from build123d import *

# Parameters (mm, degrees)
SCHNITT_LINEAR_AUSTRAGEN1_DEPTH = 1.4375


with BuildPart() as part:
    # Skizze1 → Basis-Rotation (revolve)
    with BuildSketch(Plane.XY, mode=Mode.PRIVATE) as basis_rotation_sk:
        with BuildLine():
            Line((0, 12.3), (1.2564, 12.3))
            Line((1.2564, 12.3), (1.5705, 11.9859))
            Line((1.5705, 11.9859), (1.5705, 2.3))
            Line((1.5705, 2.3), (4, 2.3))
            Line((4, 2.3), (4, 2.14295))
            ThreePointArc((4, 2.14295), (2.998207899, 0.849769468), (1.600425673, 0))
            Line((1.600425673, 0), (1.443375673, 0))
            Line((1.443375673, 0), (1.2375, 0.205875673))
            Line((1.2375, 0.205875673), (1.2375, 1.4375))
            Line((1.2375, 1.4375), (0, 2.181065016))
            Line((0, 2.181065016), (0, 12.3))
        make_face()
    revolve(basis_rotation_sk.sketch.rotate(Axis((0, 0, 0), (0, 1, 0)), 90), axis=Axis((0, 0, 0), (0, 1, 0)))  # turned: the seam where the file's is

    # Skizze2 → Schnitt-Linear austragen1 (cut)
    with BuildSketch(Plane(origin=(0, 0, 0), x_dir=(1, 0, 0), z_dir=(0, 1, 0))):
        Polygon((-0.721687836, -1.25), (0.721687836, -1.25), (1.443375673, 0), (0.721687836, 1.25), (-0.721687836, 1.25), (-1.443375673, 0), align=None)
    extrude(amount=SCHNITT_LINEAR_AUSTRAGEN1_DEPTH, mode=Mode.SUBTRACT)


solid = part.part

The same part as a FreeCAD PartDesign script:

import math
import FreeCAD as App
import Part
import Sketcher

V = App.Vector
Q = App.Units.Quantity

doc = App.newDocument("Part")
params = doc.addObject("Spreadsheet::Sheet", "Params")
for row, (alias, value) in enumerate([
    ("revolution_angle", "360 deg"),
    ("pocket1_length", "1.4375 mm"),
], start=1):
    params.set(f"A{row}", alias)
    params.set(f"B{row}", "=" + value)
    params.setAlias(f"B{row}", alias)

body = doc.addObject("PartDesign::Body", "Body")

# Sketch on XY plane
sketch1 = body.newObject("Sketcher::SketchObject", "Sketch")
sketch1.AttachmentSupport = (doc.getObject("XY_Plane"), [""])
sketch1.MapMode = "FlatFace"
sketch1.addGeometry(Part.LineSegment(V(1.2564, 12.3, 0), V(0, 12.3, 0)), False)
sketch1.addGeometry(Part.LineSegment(V(0, 12.3, 0), V(0, 2.181065, 0)), False)
sketch1.addGeometry(Part.LineSegment(V(0, 2.181065, 0), V(1.2375, 1.4375, 0)), False)
sketch1.addGeometry(Part.LineSegment(V(1.2375, 1.4375, 0), V(1.2375, 0.205876, 0)), False)
sketch1.addGeometry(Part.LineSegment(V(1.2375, 0.205876, 0), V(1.443376, 0, 0)), False)
sketch1.addGeometry(Part.LineSegment(V(1.443376, 0, 0), V(1.600426, 0, 0)), False)
sketch1.addGeometry(Part.ArcOfCircle(Part.Circle(V(0, 4.207021, 0), V(0, 0, 1), 4.501154), math.radians(-69.172295), math.radians(-27.29454)), False)
sketch1.addGeometry(Part.LineSegment(V(4, 2.14295, 0), V(4, 2.3, 0)), False)
sketch1.addGeometry(Part.LineSegment(V(4, 2.3, 0), V(1.5705, 2.3, 0)), False)
sketch1.addGeometry(Part.LineSegment(V(1.5705, 2.3, 0), V(1.5705, 11.9859, 0)), False)
sketch1.addGeometry(Part.LineSegment(V(1.5705, 11.9859, 0), V(1.2564, 12.3, 0)), False)
sketch1.addConstraint(Sketcher.Constraint("Coincident", 0, 2, 1, 1))
sketch1.addConstraint(Sketcher.Constraint("Coincident", 1, 2, 2, 1))
sketch1.addConstraint(Sketcher.Constraint("Coincident", 2, 2, 3, 1))
sketch1.addConstraint(Sketcher.Constraint("Coincident", 3, 2, 4, 1))
sketch1.addConstraint(Sketcher.Constraint("Coincident", 4, 2, 5, 1))
sketch1.addConstraint(Sketcher.Constraint("Coincident", 5, 2, 6, 1))
sketch1.addConstraint(Sketcher.Constraint("Coincident", 6, 2, 7, 1))
sketch1.addConstraint(Sketcher.Constraint("Coincident", 7, 2, 8, 1))
sketch1.addConstraint(Sketcher.Constraint("Coincident", 8, 2, 9, 1))
sketch1.addConstraint(Sketcher.Constraint("Coincident", 9, 2, 10, 1))
sketch1.addConstraint(Sketcher.Constraint("Coincident", 10, 2, 0, 1))
sketch1.addConstraint(Sketcher.Constraint("Horizontal", 0))
sketch1.addConstraint(Sketcher.Constraint("Vertical", 1))
sketch1.addConstraint(Sketcher.Constraint("Vertical", 3))
sketch1.addConstraint(Sketcher.Constraint("Horizontal", 5))
sketch1.addConstraint(Sketcher.Constraint("Vertical", 7))
sketch1.addConstraint(Sketcher.Constraint("Horizontal", 8))
sketch1.addConstraint(Sketcher.Constraint("Vertical", 9))
sketch1.addConstraint(Sketcher.Constraint("PointOnObject", 6, 3, -2))
sketch1.addConstraint(Sketcher.Constraint("PointOnObject", 0, 2, -2))
sketch1.addConstraint(Sketcher.Constraint("PointOnObject", 4, 2, -1))
sketch1.addConstraint(Sketcher.Constraint("Parallel", 4, 10))
sketch1.addConstraint(Sketcher.Constraint("Equal", 5, 7))
sketch1.addConstraint(Sketcher.Constraint("Angle", 2, Q("-31 deg")))
sketch1.addConstraint(Sketcher.Constraint("Angle", 4, Q("-45 deg")))
sketch1.addConstraint(Sketcher.Constraint("DistanceX", -1, 1, 6, 2, Q("4 mm")))
sketch1.addConstraint(Sketcher.Constraint("DistanceY", 8, 2, 10, 2, Q("10 mm")))
sketch1.addConstraint(Sketcher.Constraint("DistanceY", -1, 1, 0, 2, Q("12.3 mm")))
sketch1.addConstraint(Sketcher.Constraint("DistanceX", 0, 2, 0, 1, Q("1.2564 mm")))
sketch1.addConstraint(Sketcher.Constraint("DistanceX", 8, 2, 8, 1, Q("2.4295 mm")))
sketch1.addConstraint(Sketcher.Constraint("Radius", 6, Q("4.501154 mm")))
sketch1.addConstraint(Sketcher.Constraint("DistanceX", 2, 2, 8, 2, Q("0.333 mm")))
sketch1.addConstraint(Sketcher.Constraint("DistanceX", 5, 1, 5, 2, Q("0.15705 mm")))
sketch1.addConstraint(Sketcher.Constraint("DistanceY", -1, 1, 2, 2, Q("1.4375 mm")))
revolution = body.newObject("PartDesign::Revolution", "Revolution")
revolution.Profile = sketch1
revolution.ReferenceAxis = (sketch1, ["V_Axis"])
revolution.setExpression("Angle", "Params.revolution_angle")

# Sketch on XZ plane
sketch2 = body.newObject("Sketcher::SketchObject", "Sketch001")
sketch2.AttachmentSupport = (doc.getObject("XZ_Plane"), [""])
sketch2.MapMode = "FlatFace"
sketch2.addGeometry(Part.LineSegment(V(-0.721688, 1.25, 0), V(0.721688, 1.25, 0)), False)
sketch2.addGeometry(Part.LineSegment(V(0.721688, 1.25, 0), V(1.443376, 0, 0)), False)
sketch2.addGeometry(Part.LineSegment(V(1.443376, 0, 0), V(0.721688, -1.25, 0)), False)
sketch2.addGeometry(Part.LineSegment(V(0.721688, -1.25, 0), V(-0.721688, -1.25, 0)), False)
sketch2.addGeometry(Part.LineSegment(V(-0.721688, -1.25, 0), V(-1.443376, 0, 0)), False)
sketch2.addGeometry(Part.LineSegment(V(-1.443376, 0, 0), V(-0.721688, 1.25, 0)), False)
sketch2.addConstraint(Sketcher.Constraint("Coincident", 0, 2, 1, 1))
sketch2.addConstraint(Sketcher.Constraint("Coincident", 1, 2, 2, 1))
sketch2.addConstraint(Sketcher.Constraint("Coincident", 2, 2, 3, 1))
sketch2.addConstraint(Sketcher.Constraint("Coincident", 3, 2, 4, 1))
sketch2.addConstraint(Sketcher.Constraint("Coincident", 4, 2, 5, 1))
sketch2.addConstraint(Sketcher.Constraint("Coincident", 5, 2, 0, 1))
sketch2.addConstraint(Sketcher.Constraint("Horizontal", 0))
sketch2.addConstraint(Sketcher.Constraint("Horizontal", 3))
sketch2.addConstraint(Sketcher.Constraint("Symmetric", 0, 2, 3, 2, -1, 1))
sketch2.addConstraint(Sketcher.Constraint("Symmetric", 1, 2, 4, 2, -1, 1))
sketch2.addConstraint(Sketcher.Constraint("PointOnObject", 1, 2, -1))
sketch2.addConstraint(Sketcher.Constraint("Parallel", 2, 5))
sketch2.addConstraint(Sketcher.Constraint("Vertical", 0, 2, 2, 2))
sketch2.addConstraint(Sketcher.Constraint("Angle", 1, Q("-60 deg")))
sketch2.addConstraint(Sketcher.Constraint("DistanceY", 2, 2, 0, 2, Q("2.5 mm")))
sketch2.addConstraint(Sketcher.Constraint("DistanceX", 0, 1, 0, 2, Q("1.443376 mm")))
pocket1 = body.newObject("PartDesign::Pocket", "Pocket")
pocket1.Profile = sketch2
pocket1.setExpression("Length", "Params.pocket1_length")

doc.recompute()
